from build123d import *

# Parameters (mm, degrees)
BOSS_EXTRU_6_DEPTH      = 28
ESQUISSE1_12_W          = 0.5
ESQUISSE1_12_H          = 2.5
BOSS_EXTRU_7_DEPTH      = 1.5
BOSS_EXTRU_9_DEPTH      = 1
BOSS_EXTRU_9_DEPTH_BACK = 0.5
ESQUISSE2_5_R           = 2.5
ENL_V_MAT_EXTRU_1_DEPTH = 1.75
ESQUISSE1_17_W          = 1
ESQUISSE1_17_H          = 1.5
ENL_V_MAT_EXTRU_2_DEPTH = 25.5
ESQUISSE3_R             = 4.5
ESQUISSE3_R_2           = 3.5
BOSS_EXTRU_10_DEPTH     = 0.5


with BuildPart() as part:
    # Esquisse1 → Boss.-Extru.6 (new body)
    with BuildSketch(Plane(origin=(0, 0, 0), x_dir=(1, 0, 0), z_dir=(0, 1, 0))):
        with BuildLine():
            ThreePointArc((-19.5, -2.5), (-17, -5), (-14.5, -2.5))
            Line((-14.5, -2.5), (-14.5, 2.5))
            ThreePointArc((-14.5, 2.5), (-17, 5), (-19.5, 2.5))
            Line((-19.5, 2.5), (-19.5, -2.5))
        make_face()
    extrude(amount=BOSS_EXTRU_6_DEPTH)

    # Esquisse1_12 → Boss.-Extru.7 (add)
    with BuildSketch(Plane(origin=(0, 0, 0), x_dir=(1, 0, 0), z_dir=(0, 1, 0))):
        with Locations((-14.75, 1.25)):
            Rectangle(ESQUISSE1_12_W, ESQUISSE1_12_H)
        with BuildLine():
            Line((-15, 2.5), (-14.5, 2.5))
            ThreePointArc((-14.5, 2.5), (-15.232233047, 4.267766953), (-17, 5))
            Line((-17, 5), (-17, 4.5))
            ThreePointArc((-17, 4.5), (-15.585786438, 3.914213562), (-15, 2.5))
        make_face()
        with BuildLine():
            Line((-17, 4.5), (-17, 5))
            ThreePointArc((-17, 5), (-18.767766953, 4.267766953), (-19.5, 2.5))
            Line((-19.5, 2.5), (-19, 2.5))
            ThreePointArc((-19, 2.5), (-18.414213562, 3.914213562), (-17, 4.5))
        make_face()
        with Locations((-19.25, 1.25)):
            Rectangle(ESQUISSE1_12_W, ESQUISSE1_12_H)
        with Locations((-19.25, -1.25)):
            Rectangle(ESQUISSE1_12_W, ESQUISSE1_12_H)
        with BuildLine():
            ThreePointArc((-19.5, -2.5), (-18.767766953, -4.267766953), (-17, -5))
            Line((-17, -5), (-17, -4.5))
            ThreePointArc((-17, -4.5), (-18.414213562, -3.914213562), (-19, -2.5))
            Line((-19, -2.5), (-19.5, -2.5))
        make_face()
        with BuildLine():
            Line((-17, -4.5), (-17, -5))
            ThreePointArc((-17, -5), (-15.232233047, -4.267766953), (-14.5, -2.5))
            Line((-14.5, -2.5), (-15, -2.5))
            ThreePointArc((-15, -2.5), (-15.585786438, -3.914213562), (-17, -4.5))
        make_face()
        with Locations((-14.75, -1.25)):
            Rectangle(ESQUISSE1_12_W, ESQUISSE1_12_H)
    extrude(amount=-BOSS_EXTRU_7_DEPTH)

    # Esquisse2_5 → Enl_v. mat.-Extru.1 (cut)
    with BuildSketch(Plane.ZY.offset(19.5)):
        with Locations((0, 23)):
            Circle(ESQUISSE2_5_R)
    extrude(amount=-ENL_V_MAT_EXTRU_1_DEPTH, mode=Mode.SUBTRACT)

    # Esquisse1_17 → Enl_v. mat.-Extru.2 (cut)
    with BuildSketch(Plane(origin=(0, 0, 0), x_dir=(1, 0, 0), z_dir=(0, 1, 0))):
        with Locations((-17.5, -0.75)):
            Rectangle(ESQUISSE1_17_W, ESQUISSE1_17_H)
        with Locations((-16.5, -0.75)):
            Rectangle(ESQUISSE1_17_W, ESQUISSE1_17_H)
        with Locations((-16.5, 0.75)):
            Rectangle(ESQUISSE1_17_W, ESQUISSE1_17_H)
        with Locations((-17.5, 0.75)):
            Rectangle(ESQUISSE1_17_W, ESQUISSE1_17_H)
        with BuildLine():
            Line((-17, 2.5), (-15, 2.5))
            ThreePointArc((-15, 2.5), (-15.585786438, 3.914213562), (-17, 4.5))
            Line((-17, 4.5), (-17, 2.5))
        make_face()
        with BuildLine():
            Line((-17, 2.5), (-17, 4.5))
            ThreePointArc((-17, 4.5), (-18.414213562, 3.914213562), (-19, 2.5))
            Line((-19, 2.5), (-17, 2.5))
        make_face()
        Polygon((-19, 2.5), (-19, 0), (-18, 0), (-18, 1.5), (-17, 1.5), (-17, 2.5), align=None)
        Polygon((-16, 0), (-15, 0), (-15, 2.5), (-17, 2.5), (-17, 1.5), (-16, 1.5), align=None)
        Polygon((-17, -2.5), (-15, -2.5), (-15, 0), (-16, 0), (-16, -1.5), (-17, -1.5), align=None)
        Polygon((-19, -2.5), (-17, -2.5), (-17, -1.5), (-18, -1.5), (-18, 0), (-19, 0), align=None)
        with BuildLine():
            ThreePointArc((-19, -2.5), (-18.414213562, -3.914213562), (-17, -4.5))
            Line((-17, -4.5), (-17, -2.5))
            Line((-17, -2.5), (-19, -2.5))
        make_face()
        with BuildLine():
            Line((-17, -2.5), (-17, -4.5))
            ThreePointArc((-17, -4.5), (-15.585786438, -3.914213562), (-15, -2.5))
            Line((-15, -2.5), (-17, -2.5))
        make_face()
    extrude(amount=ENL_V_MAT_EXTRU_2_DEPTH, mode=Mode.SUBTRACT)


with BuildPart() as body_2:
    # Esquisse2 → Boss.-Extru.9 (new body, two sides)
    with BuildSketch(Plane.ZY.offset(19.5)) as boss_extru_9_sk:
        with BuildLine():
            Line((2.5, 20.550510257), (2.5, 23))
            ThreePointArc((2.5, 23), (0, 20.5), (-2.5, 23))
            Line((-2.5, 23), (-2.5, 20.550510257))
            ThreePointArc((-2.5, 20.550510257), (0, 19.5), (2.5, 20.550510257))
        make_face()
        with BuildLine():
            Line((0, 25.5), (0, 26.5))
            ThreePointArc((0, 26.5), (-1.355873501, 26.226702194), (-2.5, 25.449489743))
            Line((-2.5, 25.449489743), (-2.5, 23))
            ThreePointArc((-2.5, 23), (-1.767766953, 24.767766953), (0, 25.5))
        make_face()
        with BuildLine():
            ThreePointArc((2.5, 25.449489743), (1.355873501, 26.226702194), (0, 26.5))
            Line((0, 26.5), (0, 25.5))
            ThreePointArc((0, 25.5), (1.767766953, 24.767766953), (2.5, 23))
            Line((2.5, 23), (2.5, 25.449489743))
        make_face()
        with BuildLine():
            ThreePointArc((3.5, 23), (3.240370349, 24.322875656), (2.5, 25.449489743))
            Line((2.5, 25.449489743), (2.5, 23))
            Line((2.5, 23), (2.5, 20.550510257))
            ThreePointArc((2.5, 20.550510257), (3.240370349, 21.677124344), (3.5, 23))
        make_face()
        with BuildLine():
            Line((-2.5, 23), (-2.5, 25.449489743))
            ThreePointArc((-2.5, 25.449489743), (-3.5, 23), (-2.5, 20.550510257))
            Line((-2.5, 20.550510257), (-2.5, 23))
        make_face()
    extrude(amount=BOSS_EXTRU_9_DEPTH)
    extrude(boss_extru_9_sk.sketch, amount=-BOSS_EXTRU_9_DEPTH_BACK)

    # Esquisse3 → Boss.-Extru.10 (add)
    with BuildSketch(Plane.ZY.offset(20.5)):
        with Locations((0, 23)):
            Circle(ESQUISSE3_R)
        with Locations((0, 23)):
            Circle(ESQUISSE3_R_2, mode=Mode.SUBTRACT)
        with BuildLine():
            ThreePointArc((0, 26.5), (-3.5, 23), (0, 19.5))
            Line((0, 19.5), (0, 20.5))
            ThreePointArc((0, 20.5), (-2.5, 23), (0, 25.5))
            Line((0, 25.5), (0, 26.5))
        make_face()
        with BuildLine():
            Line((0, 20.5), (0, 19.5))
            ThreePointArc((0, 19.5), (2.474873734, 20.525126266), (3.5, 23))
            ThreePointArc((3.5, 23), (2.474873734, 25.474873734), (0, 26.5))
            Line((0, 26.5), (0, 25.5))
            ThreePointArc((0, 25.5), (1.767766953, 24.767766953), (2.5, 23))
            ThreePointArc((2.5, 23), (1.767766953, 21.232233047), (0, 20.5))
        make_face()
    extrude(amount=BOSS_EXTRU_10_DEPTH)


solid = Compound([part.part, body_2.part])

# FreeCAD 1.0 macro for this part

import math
import FreeCAD as App
import Part
import Sketcher

V = App.Vector
Q = App.Units.Quantity

doc = App.newDocument("Part")
params = doc.addObject("Spreadsheet::Sheet", "Params")
for row, (alias, value) in enumerate([
    ("sketch1_radius", "2.5 mm"),
    ("sketch1_height", "5 mm"),
    ("pad1_length", "28 mm"),
    ("sketch2_radius", "2 mm"),
    ("sketch2_radius2", "2.5 mm"),
    ("sketch2_height", "5 mm"),
    ("pad2_length", "1.5 mm"),
    ("sketch3_diameter", "5 mm"),
    ("pocket1_length", "1.75 mm"),
    ("sketch4_radius", "2 mm"),
    ("sketch4_height", "5 mm"),
    ("pocket2_length", "25.5 mm"),
    ("sketch5_radius", "3.5 mm"),
    ("sketch5_radius2", "2.5 mm"),
    ("pad3_length", "1 mm"),
    ("pad3_length2", "0.5 mm"),
    ("sketch6_diameter", "9 mm"),
    ("sketch6_radius", "2.5 mm"),
    ("pad4_length", "0.5 mm"),
], start=1):
    params.set(f"A{row}", alias)
    params.set(f"B{row}", "=" + value)
    params.setAlias(f"B{row}", alias)

body = doc.addObject("PartDesign::Body", "Body")

# Sketch on XZ plane
sketch1 = body.newObject("Sketcher::SketchObject", "Sketch")
sketch1.AttachmentSupport = (doc.getObject("XZ_Plane"), [""])
sketch1.MapMode = "FlatFace"
sketch1.addGeometry(Part.ArcOfCircle(Part.Circle(V(-17, 2.5, 0), V(0, 0, 1), 2.5), math.radians(0), math.radians(180)), False)
sketch1.addGeometry(Part.LineSegment(V(-14.5, 2.5, 0), V(-14.5, -2.5, 0)), False)
sketch1.addGeometry(Part.ArcOfCircle(Part.Circle(V(-17, -2.5, 0), V(0, 0, 1), 2.5), math.radians(180), math.radians(360)), False)
sketch1.addGeometry(Part.LineSegment(V(-19.5, -2.5, 0), V(-19.5, 2.5, 0)), False)
sketch1.addConstraint(Sketcher.Constraint("Tangent", 0, 1, 1, 1))
sketch1.addConstraint(Sketcher.Constraint("Tangent", 1, 2, 2, 2))
sketch1.addConstraint(Sketcher.Constraint("Tangent", 2, 1, 3, 1))
sketch1.addConstraint(Sketcher.Constraint("Tangent", 3, 2, 0, 2))
sketch1.addConstraint(Sketcher.Constraint("Vertical", 1))
sketch1.addConstraint(Sketcher.Constraint("Vertical", 3))
sketch1.addConstraint(Sketcher.Constraint("Radius", 0, Q("2.5 mm")))
sketch1.addConstraint(Sketcher.Constraint("DistanceY", 1, 2, 1, 1, Q("5 mm")))
sketch1.addConstraint(Sketcher.Constraint("DistanceX", 0, 3, -1, 1, Q("17 mm")))
sketch1.addConstraint(Sketcher.Constraint("DistanceY", -1, 1, 0, 3, Q("2.5 mm")))
sketch1.setExpression("Constraints[6]", "Params.sketch1_radius")
sketch1.setExpression("Constraints[7]", "Params.sketch1_height")
pad1 = body.newObject("PartDesign::Pad", "Pad")
pad1.Profile = sketch1
pad1.setExpression("Length", "Params.pad1_length")
pad1.Reversed = True

# Sketch on XZ plane
sketch2 = body.newObject("Sketcher::SketchObject", "Sketch001")
sketch2.AttachmentSupport = (doc.getObject("XZ_Plane"), [""])
sketch2.MapMode = "FlatFace"
sketch2.addGeometry(Part.ArcOfCircle(Part.Circle(V(-17, -2.5, 0), V(0, 0, 1), 2.5), math.radians(-90), math.radians(0)), False)
sketch2.addGeometry(Part.ArcOfCircle(Part.Circle(V(-17, -2.5, 0), V(0, 0, 1), 2.5), math.radians(180), math.radians(270)), False)
sketch2.addGeometry(Part.LineSegment(V(-19.5, -2.5, 0), V(-19.5, 2.5, 0)), False)
sketch2.addGeometry(Part.ArcOfCircle(Part.Circle(V(-17, 2.5, 0), V(0, 0, 1), 2.5), math.radians(90), math.radians(180)), False)
sketch2.addGeometry(Part.ArcOfCircle(Part.Circle(V(-17, 2.5, 0), V(0, 0, 1), 2.5), math.radians(0), math.radians(90)), False)
sketch2.addGeometry(Part.LineSegment(V(-14.5, 2.5, 0), V(-14.5, -2.5, 0)), False)
sketch2.addGeometry(Part.LineSegment(V(-15, -2.5, 0), V(-15, 2.5, 0)), False)
sketch2.addGeometry(Part.ArcOfCircle(Part.Circle(V(-17, 2.5, 0), V(0, 0, 1), 2), math.radians(0), math.radians(90)), False)
sketch2.addGeometry(Part.ArcOfCircle(Part.Circle(V(-17, 2.5, 0), V(0, 0, 1), 2), math.radians(90), math.radians(180)), False)
sketch2.addGeometry(Part.LineSegment(V(-19, 2.5, 0), V(-19, -2.5, 0)), False)
sketch2.addGeometry(Part.ArcOfCircle(Part.Circle(V(-17, -2.5, 0), V(0, 0, 1), 2), math.radians(-180), math.radians(-90)), False)
sketch2.addGeometry(Part.ArcOfCircle(Part.Circle(V(-17, -2.5, 0), V(0, 0, 1), 2), math.radians(-90), math.radians(0)), False)
sketch2.addConstraint(Sketcher.Constraint("Tangent", 0, 1, 1, 2))
sketch2.addConstraint(Sketcher.Constraint("Tangent", 1, 1, 2, 1))
sketch2.addConstraint(Sketcher.Constraint("Tangent", 2, 2, 3, 2))
sketch2.addConstraint(Sketcher.Constraint("Tangent", 3, 1, 4, 2))
sketch2.addConstraint(Sketcher.Constraint("Tangent", 4, 1, 5, 1))
sketch2.addConstraint(Sketcher.Constraint("Tangent", 5, 2, 0, 2))
sketch2.addConstraint(Sketcher.Constraint("Tangent", 6, 2, 7, 1))
sketch2.addConstraint(Sketcher.Constraint("Tangent", 7, 2, 8, 1))
sketch2.addConstraint(Sketcher.Constraint("Tangent", 8, 2, 9, 1))
sketch2.addConstraint(Sketcher.Constraint("Tangent", 9, 2, 10, 1))
sketch2.addConstraint(Sketcher.Constraint("Tangent", 10, 2, 11, 1))
sketch2.addConstraint(Sketcher.Constraint("Tangent", 11, 2, 6, 1))
sketch2.addConstraint(Sketcher.Constraint("Vertical", 2))
sketch2.addConstraint(Sketcher.Constraint("Vertical", 5))
sketch2.addConstraint(Sketcher.Constraint("Vertical", 6))
sketch2.addConstraint(Sketcher.Constraint("Vertical", 9))
sketch2.addConstraint(Sketcher.Constraint("Coincident", 7, 3, 3, 3))
sketch2.addConstraint(Sketcher.Constraint("Coincident", 10, 3, 0, 3))
sketch2.addConstraint(Sketcher.Constraint("Equal", 0, 1))
sketch2.addConstraint(Sketcher.Constraint("Equal", 1, 3))
sketch2.addConstraint(Sketcher.Constraint("Equal", 7, 8))
sketch2.addConstraint(Sketcher.Constraint("Symmetric", 0, 1, 3, 1, -1))
sketch2.addConstraint(Sketcher.Constraint("Vertical", 11, 3, 0, 1))
sketch2.addConstraint(Sketcher.Constraint("Vertical", 3, 1, 7, 2))
sketch2.addConstraint(Sketcher.Constraint("Vertical", 7, 2, 10, 2))
sketch2.addConstraint(Sketcher.Constraint("Radius", 7, Q("2 mm")))
sketch2.addConstraint(Sketcher.Constraint("Radius", 0, Q("2.5 mm")))
sketch2.addConstraint(Sketcher.Constraint("DistanceY", 2, 1, 2, 2, Q("5 mm")))
sketch2.addConstraint(Sketcher.Constraint("DistanceX", 0, 3, -1, 1, Q("17 mm")))
sketch2.setExpression("Constraints[25]", "Params.sketch2_radius")
sketch2.setExpression("Constraints[26]", "Params.sketch2_radius2")
sketch2.setExpression("Constraints[27]", "Params.sketch2_height")
pad2 = body.newObject("PartDesign::Pad", "Pad001")
pad2.Profile = sketch2
pad2.setExpression("Length", "Params.pad2_length")

# Sketch on YZ plane
sketch3 = body.newObject("Sketcher::SketchObject", "Sketch002")
sketch3.AttachmentSupport = (doc.getObject("YZ_Plane"), [""])
sketch3.MapMode = "FlatFace"
sketch3.AttachmentOffset = App.Placement(V(0, 0, -19.5), App.Rotation())
sketch3.addGeometry(Part.Circle(V(23, 0, 0), V(0, 0, 1), 2.5), False)
sketch3.addConstraint(Sketcher.Constraint("PointOnObject", 0, 3, -1))
sketch3.addConstraint(Sketcher.Constraint("Diameter", 0, Q("5 mm")))
sketch3.addConstraint(Sketcher.Constraint("DistanceX", -1, 1, 0, 3, Q("23 mm")))
sketch3.setExpression("Constraints[1]", "Params.sketch3_diameter")
pocket1 = body.newObject("PartDesign::Pocket", "Pocket")
pocket1.Profile = sketch3
pocket1.setExpression("Length", "Params.pocket1_length")
pocket1.Reversed = True

# Sketch on XZ plane
sketch4 = body.newObject("Sketcher::SketchObject", "Sketch003")
sketch4.AttachmentSupport = (doc.getObject("XZ_Plane"), [""])
sketch4.MapMode = "FlatFace"
sketch4.addGeometry(Part.ArcOfCircle(Part.Circle(V(-17, 2.5, 0), V(0, 0, 1), 2), math.radians(0), math.radians(90)), False)
sketch4.addGeometry(Part.LineSegment(V(-15, 2.5, 0), V(-15, -2.5, 0)), False)
sketch4.addGeometry(Part.ArcOfCircle(Part.Circle(V(-17, -2.5, 0), V(0, 0, 1), 2), math.radians(-90), math.radians(0)), False)
sketch4.addGeometry(Part.ArcOfCircle(Part.Circle(V(-17, -2.5, 0), V(0, 0, 1), 2), math.radians(-180), math.radians(-90)), False)
sketch4.addGeometry(Part.LineSegment(V(-19, -2.5, 0), V(-19, 2.5, 0)), False)
sketch4.addGeometry(Part.ArcOfCircle(Part.Circle(V(-17, 2.5, 0), V(0, 0, 1), 2), math.radians(90), math.radians(180)), False)
sketch4.addConstraint(Sketcher.Constraint("Tangent", 0, 1, 1, 1))
sketch4.addConstraint(Sketcher.Constraint("Tangent", 1, 2, 2, 2))
sketch4.addConstraint(Sketcher.Constraint("Tangent", 2, 1, 3, 2))
sketch4.addConstraint(Sketcher.Constraint("Tangent", 3, 1, 4, 1))
sketch4.addConstraint(Sketcher.Constraint("Tangent", 4, 2, 5, 2))
sketch4.addConstraint(Sketcher.Constraint("Tangent", 5, 1, 0, 2))
sketch4.addConstraint(Sketcher.Constraint("Vertical", 1))
sketch4.addConstraint(Sketcher.Constraint("Vertical", 4))
sketch4.addConstraint(Sketcher.Constraint("Equal", 0, 2))
sketch4.addConstraint(Sketcher.Constraint("Equal", 2, 3))
sketch4.addConstraint(Sketcher.Constraint("Symmetric", 2, 1, 5, 1, -1))
sketch4.addConstraint(Sketcher.Constraint("Vertical", 5, 3, 2, 1))
sketch4.addConstraint(Sketcher.Constraint("Radius", 0, Q("2 mm")))
sketch4.addConstraint(Sketcher.Constraint("DistanceY", 1, 2, 1, 1, Q("5 mm")))
sketch4.addConstraint(Sketcher.Constraint("DistanceX", 0, 3, -1, 1, Q("17 mm")))
sketch4.setExpression("Constraints[12]", "Params.sketch4_radius")
sketch4.setExpression("Constraints[13]", "Params.sketch4_height")
pocket2 = body.newObject("PartDesign::Pocket", "Pocket001")
pocket2.Profile = sketch4
pocket2.setExpression("Length", "Params.pocket2_length")
body2 = doc.addObject("PartDesign::Body", "Body001")

# Sketch on YZ plane
sketch5 = body2.newObject("Sketcher::SketchObject", "Sketch004")
sketch5.AttachmentSupport = (doc.getObject("YZ_Plane001"), [""])
sketch5.MapMode = "FlatFace"
sketch5.AttachmentOffset = App.Placement(V(0, 0, -19.5), App.Rotation())
sketch5.addGeometry(Part.ArcOfCircle(Part.Circle(V(23, 0, 0), V(0, 0, 1), 3.5), math.radians(-46), math.radians(0)), False)
sketch5.addGeometry(Part.ArcOfCircle(Part.Circle(V(23, 0, 0), V(0, 0, 1), 3.5), math.radians(-134), math.radians(-46)), False)
sketch5.addGeometry(Part.ArcOfCircle(Part.Circle(V(23, 0, 0), V(0, 0, 1), 3.5), math.radians(134), math.radians(226)), False)
sketch5.addGeometry(Part.ArcOfCircle(Part.Circle(V(23, 0, 0), V(0, 0, 1), 3.5), math.radians(90), math.radians(134)), False)
sketch5.addGeometry(Part.ArcOfCircle(Part.Circle(V(23, 0, 0), V(0, 0, 1), 3.5), math.radians(46), math.radians(90)), False)
sketch5.addGeometry(Part.ArcOfCircle(Part.Circle(V(23, 0, 0), V(0, 0, 1), 3.5), math.radians(0), math.radians(46)), False)
sketch5.addGeometry(Part.ArcOfCircle(Part.Circle(V(23, 0, 0), V(0, 0, 1), 2.5), math.radians(90), math.radians(270)), False)
sketch5.addGeometry(Part.ArcOfCircle(Part.Circle(V(23, 0, 0), V(0, 0, 1), 2.5), math.radians(-90), math.radians(0)), False)
sketch5.addGeometry(Part.ArcOfCircle(Part.Circle(V(23, 0, 0), V(0, 0, 1), 2.5), math.radians(0), math.radians(90)), False)
sketch5.addConstraint(Sketcher.Constraint("Tangent", 0, 1, 1, 2))
sketch5.addConstraint(Sketcher.Constraint("Tangent", 1, 1, 2, 2))
sketch5.addConstraint(Sketcher.Constraint("Tangent", 2, 1, 3, 2))
sketch5.addConstraint(Sketcher.Constraint("Tangent", 3, 1, 4, 2))
sketch5.addConstraint(Sketcher.Constraint("Tangent", 4, 1, 5, 2))
sketch5.addConstraint(Sketcher.Constraint("Tangent", 5, 1, 0, 2))
sketch5.addConstraint(Sketcher.Constraint("Tangent", 6, 2, 7, 1))
sketch5.addConstraint(Sketcher.Constraint("Tangent", 7, 2, 8, 1))
sketch5.addConstraint(Sketcher.Constraint("Tangent", 8, 2, 6, 1))
sketch5.addConstraint(Sketcher.Constraint("Coincident", 2, 3, 0, 3))
sketch5.addConstraint(Sketcher.Constraint("Coincident", 6, 3, 0, 3))
sketch5.addConstraint(Sketcher.Constraint("Equal", 2, 3))
sketch5.addConstraint(Sketcher.Constraint("Symmetric", 1, 1, 2, 1, -1))
sketch5.addConstraint(Sketcher.Constraint("PointOnObject", 5, 1, -1))
sketch5.addConstraint(Sketcher.Constraint("PointOnObject", 7, 2, -1))
sketch5.addConstraint(Sketcher.Constraint("Horizontal", 0, 1, 1, 1))
sketch5.addConstraint(Sketcher.Constraint("Horizontal", 2, 1, 4, 1))
sketch5.addConstraint(Sketcher.Constraint("Horizontal", 1, 1, 6, 2))
sketch5.addConstraint(Sketcher.Constraint("Vertical", 8, 3, 3, 1))
sketch5.addConstraint(Sketcher.Constraint("Vertical", 3, 1, 6, 2))
sketch5.addConstraint(Sketcher.Constraint("Vertical", 6, 2, 8, 2))
sketch5.addConstraint(Sketcher.Constraint("Radius", 0, Q("3.5 mm")))
sketch5.addConstraint(Sketcher.Constraint("Radius", 6, Q("2.5 mm")))
sketch5.addConstraint(Sketcher.Constraint("DistanceX", -1, 1, 0, 3, Q("23 mm")))
sketch5.setExpression("Constraints[21]", "Params.sketch5_radius")
sketch5.setExpression("Constraints[22]", "Params.sketch5_radius2")
pad3 = body2.newObject("PartDesign::Pad", "Pad002")
pad3.Profile = sketch5
pad3.Type = "TwoLengths"
pad3.setExpression("Length", "Params.pad3_length")
pad3.setExpression("Length2", "Params.pad3_length2")
pad3.Reversed = True

# Sketch on YZ plane
sketch6 = body2.newObject("Sketcher::SketchObject", "Sketch005")
sketch6.AttachmentSupport = (doc.getObject("YZ_Plane001"), [""])
sketch6.MapMode = "FlatFace"
sketch6.AttachmentOffset = App.Placement(V(0, 0, -20.5), App.Rotation())
sketch6.addGeometry(Part.Circle(V(23, 0, 0), V(0, 0, 1), 4.5), False)
sketch6.addGeometry(Part.ArcOfCircle(Part.Circle(V(23, 0, 0), V(0, 0, 1), 2.5), math.radians(180), math.radians(360)), False)
sketch6.addGeometry(Part.ArcOfCircle(Part.Circle(V(23, 0, 0), V(0, 0, 1), 2.5), math.radians(0), math.radians(90)), False)
sketch6.addGeometry(Part.ArcOfCircle(Part.Circle(V(23, 0, 0), V(0, 0, 1), 2.5), math.radians(90), math.radians(180)), False)
sketch6.addConstraint(Sketcher.Constraint("Tangent", 1, 2, 2, 1))
sketch6.addConstraint(Sketcher.Constraint("Tangent", 2, 2, 3, 1))
sketch6.addConstraint(Sketcher.Constraint("Tangent", 3, 2, 1, 1))
sketch6.addConstraint(Sketcher.Constraint("Coincident", 1, 3, 0, 3))
sketch6.addConstraint(Sketcher.Constraint("PointOnObject", 0, 3, -1))
sketch6.addConstraint(Sketcher.Constraint("PointOnObject", 1, 2, -1))
sketch6.addConstraint(Sketcher.Constraint("PointOnObject", 3, 2, -1))
sketch6.addConstraint(Sketcher.Constraint("Vertical", 3, 3, 2, 2))
sketch6.addConstraint(Sketcher.Constraint("Diameter", 0, Q("9 mm")))
sketch6.addConstraint(Sketcher.Constraint("Radius", 1, Q("2.5 mm")))
sketch6.addConstraint(Sketcher.Constraint("DistanceX", -1, 1, 0, 3, Q("23 mm")))
sketch6.setExpression("Constraints[8]", "Params.sketch6_diameter")
sketch6.setExpression("Constraints[9]", "Params.sketch6_radius")
pad4 = body2.newObject("PartDesign::Pad", "Pad003")
pad4.Profile = sketch6
pad4.setExpression("Length", "Params.pad4_length")
pad4.Reversed = True

doc.recompute()
